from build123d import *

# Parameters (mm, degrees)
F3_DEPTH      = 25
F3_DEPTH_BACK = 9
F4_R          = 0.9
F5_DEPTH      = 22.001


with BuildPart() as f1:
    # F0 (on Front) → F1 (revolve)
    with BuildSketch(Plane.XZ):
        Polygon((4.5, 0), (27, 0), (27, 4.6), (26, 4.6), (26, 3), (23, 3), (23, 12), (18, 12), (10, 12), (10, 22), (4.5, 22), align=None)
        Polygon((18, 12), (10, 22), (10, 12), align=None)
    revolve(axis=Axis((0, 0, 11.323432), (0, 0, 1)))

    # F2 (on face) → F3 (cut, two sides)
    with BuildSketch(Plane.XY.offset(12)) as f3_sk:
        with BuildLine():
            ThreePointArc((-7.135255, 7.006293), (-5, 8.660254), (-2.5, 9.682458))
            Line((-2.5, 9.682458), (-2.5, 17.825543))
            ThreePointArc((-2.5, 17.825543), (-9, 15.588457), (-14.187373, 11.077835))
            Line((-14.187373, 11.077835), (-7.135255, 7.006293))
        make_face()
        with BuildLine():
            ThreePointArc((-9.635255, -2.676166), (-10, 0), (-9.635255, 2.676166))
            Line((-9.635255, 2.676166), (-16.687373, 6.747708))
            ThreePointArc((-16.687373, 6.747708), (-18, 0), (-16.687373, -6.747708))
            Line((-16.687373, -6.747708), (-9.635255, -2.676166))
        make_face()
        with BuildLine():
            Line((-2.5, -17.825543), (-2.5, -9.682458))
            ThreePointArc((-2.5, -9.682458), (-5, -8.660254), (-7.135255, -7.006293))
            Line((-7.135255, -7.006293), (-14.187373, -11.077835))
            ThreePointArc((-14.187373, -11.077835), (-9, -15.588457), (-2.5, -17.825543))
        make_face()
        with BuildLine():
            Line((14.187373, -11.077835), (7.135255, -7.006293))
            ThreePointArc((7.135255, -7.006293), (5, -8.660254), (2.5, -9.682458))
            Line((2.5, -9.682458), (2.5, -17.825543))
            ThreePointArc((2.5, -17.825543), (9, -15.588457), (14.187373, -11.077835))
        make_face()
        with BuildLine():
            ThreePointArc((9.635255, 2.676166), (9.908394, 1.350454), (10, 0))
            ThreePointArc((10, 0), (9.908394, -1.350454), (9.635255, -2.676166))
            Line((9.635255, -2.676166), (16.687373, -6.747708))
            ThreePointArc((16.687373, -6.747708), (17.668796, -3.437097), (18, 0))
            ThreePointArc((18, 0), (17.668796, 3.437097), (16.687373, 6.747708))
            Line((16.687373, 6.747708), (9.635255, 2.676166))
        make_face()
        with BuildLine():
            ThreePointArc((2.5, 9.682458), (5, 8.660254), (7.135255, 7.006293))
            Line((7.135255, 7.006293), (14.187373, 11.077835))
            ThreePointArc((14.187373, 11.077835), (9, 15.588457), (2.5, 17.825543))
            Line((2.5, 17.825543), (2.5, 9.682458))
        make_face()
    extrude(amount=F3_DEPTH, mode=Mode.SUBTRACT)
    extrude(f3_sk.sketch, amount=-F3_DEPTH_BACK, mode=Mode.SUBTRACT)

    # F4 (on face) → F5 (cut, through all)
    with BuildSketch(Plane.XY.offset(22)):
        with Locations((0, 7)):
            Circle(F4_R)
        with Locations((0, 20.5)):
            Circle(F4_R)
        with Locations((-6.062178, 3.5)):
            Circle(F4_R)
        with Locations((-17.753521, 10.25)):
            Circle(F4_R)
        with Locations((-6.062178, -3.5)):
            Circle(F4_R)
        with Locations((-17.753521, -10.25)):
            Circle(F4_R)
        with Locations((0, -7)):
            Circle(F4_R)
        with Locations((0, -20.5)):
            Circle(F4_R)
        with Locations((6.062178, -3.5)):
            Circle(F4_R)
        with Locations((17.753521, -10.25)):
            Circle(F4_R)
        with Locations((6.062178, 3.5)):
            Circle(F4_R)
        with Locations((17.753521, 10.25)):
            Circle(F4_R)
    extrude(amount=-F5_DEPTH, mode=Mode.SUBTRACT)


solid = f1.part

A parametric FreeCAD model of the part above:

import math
import FreeCAD as App
import Part
import Sketcher
from FreeCAD import Vector
Q = App.Units.Quantity


def add_polygon(sketch, points):
    """Adds a closed chain of lines whose ends are joined by coincident constraints."""
    first, n = sketch.GeometryCount, len(points)
    for a, b in zip(points, points[1:] + points[:1]):
        sketch.addGeometry(Part.LineSegment(App.Vector(*a, 0), App.Vector(*b, 0)), False)
    for i in range(n):
        sketch.addConstraint(Sketcher.Constraint("Coincident", first + i, 2, first + (i + 1) % n, 1))

doc = App.newDocument("Part")
body = doc.addObject("PartDesign::Body", "Body")

# Sketch on XZ plane
sketch1 = doc.addObject("Sketcher::SketchObject", "Sketch")
body.addObject(sketch1)
sketch1.AttachmentSupport = (doc.XZ_Plane, [""])
sketch1.MapMode = "FlatFace"
add_polygon(sketch1, [(4.5, 0), (27, 0), (27, 4.6), (26, 4.6), (26, 3), (23, 3), (23, 12), (18, 12), (10, 22), (4.5, 22)])  # lines 0-9
sketch1.addConstraint(Sketcher.Constraint("Horizontal", 0))
sketch1.addConstraint(Sketcher.Constraint("Vertical", 1))
sketch1.addConstraint(Sketcher.Constraint("Horizontal", 2))
sketch1.addConstraint(Sketcher.Constraint("Vertical", 3))
sketch1.addConstraint(Sketcher.Constraint("Horizontal", 4))
sketch1.addConstraint(Sketcher.Constraint("Vertical", 5))
sketch1.addConstraint(Sketcher.Constraint("Horizontal", 6))
sketch1.addConstraint(Sketcher.Constraint("Horizontal", 8))
sketch1.addConstraint(Sketcher.Constraint("Vertical", 9))
sketch1.addConstraint(Sketcher.Constraint("PointOnObject", 0, 2, -1))
sketch1.addConstraint(Sketcher.Constraint("DistanceX", 2, 2, 2, 1, Q("1 mm")))
sketch1.addConstraint(Sketcher.Constraint("DistanceX", 4, 2, 4, 1, Q("3 mm")))
sketch1.addConstraint(Sketcher.Constraint("DistanceX", 6, 2, 6, 1, Q("5 mm")))
sketch1.addConstraint(Sketcher.Constraint("DistanceY", 5, 1, 5, 2, Q("9 mm")))
sketch1.addConstraint(Sketcher.Constraint("DistanceY", 9, 2, 9, 1, Q("22 mm")))
sketch1.addConstraint(Sketcher.Constraint("DistanceX", 0, 1, 0, 2, Q("22.5 mm")))
sketch1.addConstraint(Sketcher.Constraint("DistanceX", 8, 2, 8, 1, Q("5.5 mm")))
sketch1.addConstraint(Sketcher.Constraint("DistanceY", 1, 1, 1, 2, Q("4.6 mm")))
sketch1.addConstraint(Sketcher.Constraint("DistanceY", 3, 2, 3, 1, Q("1.6 mm")))
sketch1.addConstraint(Sketcher.Constraint("DistanceX", -1, 1, 0, 2, Q("27 mm")))
revolution = doc.addObject("PartDesign::Revolution", "Revolution")
body.addObject(revolution)
revolution.Profile = sketch1
revolution.ReferenceAxis = (sketch1, ["V_Axis"])
revolution.Angle = 360

# Sketch on XY plane
sketch2 = doc.addObject("Sketcher::SketchObject", "Sketch001")
body.addObject(sketch2)
sketch2.AttachmentSupport = (doc.XY_Plane, [""])
sketch2.MapMode = "FlatFace"
sketch2.AttachmentOffset = App.Placement(Vector(0, 0, 12), App.Rotation())
sketch2.addGeometry(Part.ArcOfCircle(Part.Circle(Vector(-0.000001, 0, 0), Vector(0, 0, 1), 10), math.radians(104.477506), math.radians(135.522481)), False)
sketch2.addGeometry(Part.LineSegment(Vector(-2.5, 9.682458, 0), Vector(-2.5, 17.825543, 0)), False)
sketch2.addGeometry(Part.ArcOfCircle(Part.Circle(Vector(-0.000002, 0.000003, 0), Vector(0, 0, 1), 17.999996), math.radians(97.983552), math.radians(142.016448)), False)
sketch2.addGeometry(Part.LineSegment(Vector(-14.187373, 11.077835, 0), Vector(-7.135255, 7.006293, 0)), False)
sketch2.addGeometry(Part.ArcOfCircle(Part.Circle(Vector(0.000005, 0, 0), Vector(0, 0, 1), 10.000005), math.radians(164.477518), math.radians(195.522482)), False)
sketch2.addGeometry(Part.LineSegment(Vector(-9.635255, 2.676166, 0), Vector(-16.687373, 6.747708, 0)), False)
sketch2.addGeometry(Part.ArcOfCircle(Part.Circle(Vector(-0.000007, 0, 0), Vector(0, 0, 1), 17.999993), math.radians(157.983548), math.radians(202.016452)), False)
sketch2.addGeometry(Part.LineSegment(Vector(-16.687373, -6.747708, 0), Vector(-9.635255, -2.676166, 0)), False)
sketch2.addGeometry(Part.LineSegment(Vector(-2.5, -17.825543, 0), Vector(-2.5, -9.682458, 0)), False)
sketch2.addGeometry(Part.ArcOfCircle(Part.Circle(Vector(-0.000001, 0, 0), Vector(0, 0, 1), 10), math.radians(-135.522481), math.radians(-104.477506)), False)
sketch2.addGeometry(Part.LineSegment(Vector(-7.135255, -7.006293, 0), Vector(-14.187373, -11.077835, 0)), False)
sketch2.addGeometry(Part.ArcOfCircle(Part.Circle(Vector(-0.000002, -0.000003, 0), Vector(0, 0, 1), 17.999996), math.radians(-142.016448), math.radians(-97.983552)), False)
sketch2.addGeometry(Part.LineSegment(Vector(14.187373, -11.077835, 0), Vector(7.135255, -7.006293, 0)), False)
sketch2.addGeometry(Part.ArcOfCircle(Part.Circle(Vector(0.000001, 0, 0), Vector(0, 0, 1), 10), math.radians(-75.522494), math.radians(-44.477519)), False)
sketch2.addGeometry(Part.LineSegment(Vector(2.5, -9.682458, 0), Vector(2.5, -17.825543, 0)), False)
sketch2.addGeometry(Part.ArcOfCircle(Part.Circle(Vector(0.000002, -0.000003, 0), Vector(0, 0, 1), 17.999996), math.radians(-82.016448), math.radians(-37.983552)), False)
sketch2.addGeometry(Part.ArcOfCircle(Part.Circle(Vector(-0.000022, -0.000002, 0), Vector(0, 0, 1), 10.000022), math.radians(0.000013), math.radians(15.522469)), False)
sketch2.addGeometry(Part.ArcOfCircle(Part.Circle(Vector(-0.000022, 0.000002, 0), Vector(0, 0, 1), 10.000022), math.radians(-15.522469), math.radians(-0.000013)), False)
sketch2.addGeometry(Part.LineSegment(Vector(9.635255, -2.676166, 0), Vector(16.687373, -6.747708, 0)), False)
sketch2.addGeometry(Part.ArcOfCircle(Part.Circle(Vector(-0.000004, 0.000002, 0), Vector(0, 0, 1), 18.000004), math.radians(-22.016446), math.radians(-0.000007)), False)
sketch2.addGeometry(Part.ArcOfCircle(Part.Circle(Vector(-0.000004, -0.000002, 0), Vector(0, 0, 1), 18.000004), math.radians(0.000007), math.radians(22.016446)), False)
sketch2.addGeometry(Part.LineSegment(Vector(16.687373, 6.747708, 0), Vector(9.635255, 2.676166, 0)), False)
sketch2.addGeometry(Part.ArcOfCircle(Part.Circle(Vector(0.000001, 0, 0), Vector(0, 0, 1), 10), math.radians(44.477519), math.radians(75.522494)), False)
sketch2.addGeometry(Part.LineSegment(Vector(7.135255, 7.006293, 0), Vector(14.187373, 11.077835, 0)), False)
sketch2.addGeometry(Part.ArcOfCircle(Part.Circle(Vector(0.000002, 0.000003, 0), Vector(0, 0, 1), 17.999996), math.radians(37.983552), math.radians(82.016448)), False)
sketch2.addGeometry(Part.LineSegment(Vector(2.5, 17.825543, 0), Vector(2.5, 9.682458, 0)), False)
sketch2.addConstraint(Sketcher.Constraint("Coincident", 0, 1, 1, 1))
sketch2.addConstraint(Sketcher.Constraint("Coincident", 1, 2, 2, 1))
sketch2.addConstraint(Sketcher.Constraint("Coincident", 2, 2, 3, 1))
sketch2.addConstraint(Sketcher.Constraint("Coincident", 3, 2, 0, 2))
sketch2.addConstraint(Sketcher.Constraint("Coincident", 4, 1, 5, 1))
sketch2.addConstraint(Sketcher.Constraint("Coincident", 5, 2, 6, 1))
sketch2.addConstraint(Sketcher.Constraint("Coincident", 6, 2, 7, 1))
sketch2.addConstraint(Sketcher.Constraint("Coincident", 7, 2, 4, 2))
sketch2.addConstraint(Sketcher.Constraint("Coincident", 8, 2, 9, 2))
sketch2.addConstraint(Sketcher.Constraint("Coincident", 9, 1, 10, 1))
sketch2.addConstraint(Sketcher.Constraint("Coincident", 10, 2, 11, 1))
sketch2.addConstraint(Sketcher.Constraint("Coincident", 11, 2, 8, 1))
sketch2.addConstraint(Sketcher.Constraint("Coincident", 12, 2, 13, 2))
sketch2.addConstraint(Sketcher.Constraint("Coincident", 13, 1, 14, 1))
sketch2.addConstraint(Sketcher.Constraint("Coincident", 14, 2, 15, 1))
sketch2.addConstraint(Sketcher.Constraint("Coincident", 15, 2, 12, 1))
sketch2.addConstraint(Sketcher.Constraint("Coincident", 16, 1, 17, 2))
sketch2.addConstraint(Sketcher.Constraint("Coincident", 17, 1, 18, 1))
sketch2.addConstraint(Sketcher.Constraint("Coincident", 18, 2, 19, 1))
sketch2.addConstraint(Sketcher.Constraint("Coincident", 19, 2, 20, 1))
sketch2.addConstraint(Sketcher.Constraint("Coincident", 20, 2, 21, 1))
sketch2.addConstraint(Sketcher.Constraint("Coincident", 21, 2, 16, 2))
sketch2.addConstraint(Sketcher.Constraint("Coincident", 22, 1, 23, 1))
sketch2.addConstraint(Sketcher.Constraint("Coincident", 23, 2, 24, 1))
sketch2.addConstraint(Sketcher.Constraint("Coincident", 24, 2, 25, 1))
sketch2.addConstraint(Sketcher.Constraint("Coincident", 25, 2, 22, 2))
sketch2.addConstraint(Sketcher.Constraint("Vertical", 1))
sketch2.addConstraint(Sketcher.Constraint("Vertical", 8))
sketch2.addConstraint(Sketcher.Constraint("Vertical", 14))
sketch2.addConstraint(Sketcher.Constraint("Vertical", 25))
sketch2.addConstraint(Sketcher.Constraint("Coincident", 0, 3, -1, 1))
sketch2.addConstraint(Sketcher.Constraint("Coincident", 2, 3, -1, 1))
sketch2.addConstraint(Sketcher.Constraint("Coincident", 4, 3, -1, 1))
sketch2.addConstraint(Sketcher.Constraint("Coincident", 6, 3, -1, 1))
sketch2.addConstraint(Sketcher.Constraint("Coincident", 9, 3, -1, 1))
sketch2.addConstraint(Sketcher.Constraint("Coincident", 11, 3, -1, 1))
sketch2.addConstraint(Sketcher.Constraint("Coincident", 13, 3, -1, 1))
sketch2.addConstraint(Sketcher.Constraint("Coincident", 15, 3, -1, 1))
sketch2.addConstraint(Sketcher.Constraint("Coincident", 19, 3, -1, 1))
sketch2.addConstraint(Sketcher.Constraint("Coincident", 20, 3, -1, 1))
sketch2.addConstraint(Sketcher.Constraint("Coincident", 22, 3, -1, 1))
sketch2.addConstraint(Sketcher.Constraint("Coincident", 24, 3, -1, 1))
sketch2.addConstraint(Sketcher.Constraint("Coincident", 17, 3, 16, 3))
sketch2.addConstraint(Sketcher.Constraint("PointOnObject", 16, 1, -1))
sketch2.addConstraint(Sketcher.Constraint("PointOnObject", 19, 2, -1))
sketch2.addConstraint(Sketcher.Constraint("Radius", 0, Q("10 mm")))
sketch2.addConstraint(Sketcher.Constraint("Radius", 9, Q("10 mm")))
sketch2.addConstraint(Sketcher.Constraint("Radius", 13, Q("10 mm")))
sketch2.addConstraint(Sketcher.Constraint("Radius", 22, Q("10 mm")))
sketch2.addConstraint(Sketcher.Constraint("DistanceX", -1, 1, 16, 1, Q("10 mm")))
sketch2.addConstraint(Sketcher.Constraint("DistanceX", -1, 1, 19, 2, Q("18 mm")))
sketch2.addConstraint(Sketcher.Constraint("DistanceX", 8, 2, 13, 1, Q("5 mm")))
sketch2.addConstraint(Sketcher.Constraint("DistanceX", 1, 2, 24, 2, Q("5 mm")))
sketch2.addConstraint(Sketcher.Constraint("DistanceX", 0, 1, -1, 1, Q("2.5 mm")))
sketch2.addConstraint(Sketcher.Constraint("DistanceX", 8, 2, -1, 1, Q("2.5 mm")))
sketch2.addConstraint(Sketcher.Constraint("DistanceX", 4, 1, 3, 2, Q("2.5 mm")))
sketch2.addConstraint(Sketcher.Constraint("DistanceX", 5, 2, 2, 2, Q("2.5 mm")))
sketch2.addConstraint(Sketcher.Constraint("DistanceX", 7, 2, 9, 1, Q("2.5 mm")))
sketch2.addConstraint(Sketcher.Constraint("DistanceX", 6, 2, 10, 2, Q("2.5 mm")))
sketch2.addConstraint(Sketcher.Constraint("DistanceX", 12, 2, 17, 1, Q("2.5 mm")))
sketch2.addConstraint(Sketcher.Constraint("DistanceX", 15, 2, 18, 2, Q("2.5 mm")))
sketch2.addConstraint(Sketcher.Constraint("DistanceX", 22, 1, 21, 2, Q("2.5 mm")))
sketch2.addConstraint(Sketcher.Constraint("DistanceX", 23, 2, 20, 2, Q("2.5 mm")))
sketch2.addConstraint(Sketcher.Constraint("Radius", 16, Q("10.000022 mm")))
sketch2.addConstraint(Sketcher.Constraint("Radius", 2, Q("17.999996 mm")))
sketch2.addConstraint(Sketcher.Constraint("Radius", 4, Q("10.000005 mm")))
sketch2.addConstraint(Sketcher.Constraint("Radius", 6, Q("17.999993 mm")))
sketch2.addConstraint(Sketcher.Constraint("Radius", 11, Q("17.999996 mm")))
sketch2.addConstraint(Sketcher.Constraint("Radius", 15, Q("17.999996 mm")))
sketch2.addConstraint(Sketcher.Constraint("Radius", 24, Q("17.999996 mm")))
sketch2.addConstraint(Sketcher.Constraint("DistanceY", 6, 2, 3, 2, Q("13.754001 mm")))
sketch2.addConstraint(Sketcher.Constraint("DistanceY", 10, 2, 4, 1, Q("13.754001 mm")))
sketch2.addConstraint(Sketcher.Constraint("DistanceY", 12, 2, 20, 2, Q("13.754001 mm")))
sketch2.addConstraint(Sketcher.Constraint("DistanceY", -1, 1, 5, 2, Q("6.747708 mm")))
sketch2.addConstraint(Sketcher.Constraint("DistanceY", 18, 2, -1, 1, Q("6.747708 mm")))
sketch2.addConstraint(Sketcher.Constraint("DistanceY", 16, 3, 0, 1, Q("9.68246 mm")))
sketch2.addConstraint(Sketcher.Constraint("DistanceY", 6, 2, 7, 2, Q("4.071542 mm")))
sketch2.addConstraint(Sketcher.Constraint("DistanceY", 12, 2, 15, 3, Q("7.00629 mm")))
sketch2.addConstraint(Sketcher.Constraint("DistanceY", 17, 1, 21, 2, Q("5.352332 mm")))
pocket1 = doc.addObject("PartDesign::Pocket", "Pocket")
body.addObject(pocket1)
pocket1.Profile = sketch2
pocket1.Type = "TwoLengths"
pocket1.Length = 25
pocket1.Length2 = 9
pocket1.Reversed = True

# Sketch on XY plane
sketch3 = doc.addObject("Sketcher::SketchObject", "Sketch002")
body.addObject(sketch3)
sketch3.AttachmentSupport = (doc.XY_Plane, [""])
sketch3.MapMode = "FlatFace"
sketch3.AttachmentOffset = App.Placement(Vector(0, 0, 22), App.Rotation())
sketch3.addGeometry(Part.Circle(Vector(0, 7, 0), Vector(0, 0, 1), 0.9), False)
sketch3.addGeometry(Part.Circle(Vector(0, 20.5, 0), Vector(0, 0, 1), 0.9), False)
sketch3.addGeometry(Part.Circle(Vector(-6.1, 3.5, 0), Vector(0, 0, 1), 0.9), False)
sketch3.addGeometry(Part.Circle(Vector(-17.8, 10.2, 0), Vector(0, 0, 1), 0.9), False)
sketch3.addGeometry(Part.Circle(Vector(-6.1, -3.5, 0), Vector(0, 0, 1), 0.9), False)
sketch3.addGeometry(Part.Circle(Vector(-17.8, -10.2, 0), Vector(0, 0, 1), 0.9), False)
sketch3.addGeometry(Part.Circle(Vector(0, -7, 0), Vector(0, 0, 1), 0.9), False)
sketch3.addGeometry(Part.Circle(Vector(0, -20.5, 0), Vector(0, 0, 1), 0.9), False)
sketch3.addGeometry(Part.Circle(Vector(6.1, -3.5, 0), Vector(0, 0, 1), 0.9), False)
sketch3.addGeometry(Part.Circle(Vector(17.8, -10.2, 0), Vector(0, 0, 1), 0.9), False)
sketch3.addGeometry(Part.Circle(Vector(6.1, 3.5, 0), Vector(0, 0, 1), 0.9), False)
sketch3.addGeometry(Part.Circle(Vector(17.8, 10.2, 0), Vector(0, 0, 1), 0.9), False)
sketch3.addConstraint(Sketcher.Constraint("Equal", 0, 1))
sketch3.addConstraint(Sketcher.Constraint("Equal", 1, 2))
sketch3.addConstraint(Sketcher.Constraint("Equal", 2, 3))
sketch3.addConstraint(Sketcher.Constraint("Equal", 3, 4))
sketch3.addConstraint(Sketcher.Constraint("Equal", 4, 5))
sketch3.addConstraint(Sketcher.Constraint("Equal", 5, 6))
sketch3.addConstraint(Sketcher.Constraint("Equal", 6, 7))
sketch3.addConstraint(Sketcher.Constraint("Equal", 7, 8))
sketch3.addConstraint(Sketcher.Constraint("Equal", 8, 9))
sketch3.addConstraint(Sketcher.Constraint("Equal", 9, 10))
sketch3.addConstraint(Sketcher.Constraint("Equal", 10, 11))
sketch3.addConstraint(Sketcher.Constraint("Symmetric", 0, 3, 6, 3, -1, 1))
sketch3.addConstraint(Sketcher.Constraint("Symmetric", 1, 3, 7, 3, -1, 1))
sketch3.addConstraint(Sketcher.Constraint("Symmetric", 2, 3, 8, 3, -1, 1))
sketch3.addConstraint(Sketcher.Constraint("Symmetric", 3, 3, 9, 3, -1, 1))
sketch3.addConstraint(Sketcher.Constraint("Symmetric", 4, 3, 10, 3, -1, 1))
sketch3.addConstraint(Sketcher.Constraint("Symmetric", 5, 3, 11, 3, -1, 1))
sketch3.addConstraint(Sketcher.Constraint("Symmetric", 4, 3, 8, 3, -2))
sketch3.addConstraint(Sketcher.Constraint("Symmetric", 5, 3, 9, 3, -2))
sketch3.addConstraint(Sketcher.Constraint("PointOnObject", 0, 3, -2))
sketch3.addConstraint(Sketcher.Constraint("PointOnObject", 1, 3, -2))
sketch3.addConstraint(Sketcher.Constraint("Diameter", 0, Q("1.8 mm")))
sketch3.addConstraint(Sketcher.Constraint("DistanceY", -1, 1, 0, 3, Q("7 mm")))
sketch3.addConstraint(Sketcher.Constraint("DistanceY", 2, 3, 1, 3, Q("17 mm")))
sketch3.addConstraint(Sketcher.Constraint("DistanceY", 4, 3, 2, 3, Q("7 mm")))
sketch3.addConstraint(Sketcher.Constraint("DistanceY", 5, 3, 3, 3, Q("20.5 mm")))
sketch3.addConstraint(Sketcher.Constraint("DistanceX", 4, 3, 9, 3, Q("23.815699 mm")))
sketch3.addConstraint(Sketcher.Constraint("DistanceX", 2, 3, -1, 1, Q("6.062178 mm")))
pocket2 = doc.addObject("PartDesign::Pocket", "Pocket001")
body.addObject(pocket2)
pocket2.Profile = sketch3
pocket2.Type = "ThroughAll"

doc.recompute()
